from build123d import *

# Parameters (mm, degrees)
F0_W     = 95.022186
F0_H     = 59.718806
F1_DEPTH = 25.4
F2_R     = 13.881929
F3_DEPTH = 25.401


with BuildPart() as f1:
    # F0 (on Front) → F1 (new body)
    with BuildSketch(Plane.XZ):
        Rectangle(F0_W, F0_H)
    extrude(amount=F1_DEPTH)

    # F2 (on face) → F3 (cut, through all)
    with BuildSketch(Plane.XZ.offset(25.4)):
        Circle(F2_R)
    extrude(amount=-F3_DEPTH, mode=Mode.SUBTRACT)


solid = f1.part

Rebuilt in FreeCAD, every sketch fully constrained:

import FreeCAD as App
import Part
import Sketcher
Q = App.Units.Quantity


def add_polygon(sketch, points):
    """Adds a closed chain of lines whose ends are joined by coincident constraints."""
    first, n = sketch.GeometryCount, len(points)
    for a, b in zip(points, points[1:] + points[:1]):
        sketch.addGeometry(Part.LineSegment(App.Vector(*a, 0), App.Vector(*b, 0)), False)
    for i in range(n):
        sketch.addConstraint(Sketcher.Constraint("Coincident", first + i, 2, first + (i + 1) % n, 1))

doc = App.newDocument("Part")
body = doc.addObject("PartDesign::Body", "Body")

# Sketch on XZ plane
sketch1 = doc.addObject("Sketcher::SketchObject", "Sketch")
body.addObject(sketch1)
sketch1.AttachmentSupport = (doc.XZ_Plane, [""])
sketch1.MapMode = "FlatFace"
add_polygon(sketch1, [(-47.511093, 29.859403), (-47.511093, -29.859403), (47.511093, -29.859403), (47.511093, 29.859403)])  # lines 0-3
sketch1.addConstraint(Sketcher.Constraint("Vertical", 0))
sketch1.addConstraint(Sketcher.Constraint("Horizontal", 1))
sketch1.addConstraint(Sketcher.Constraint("Vertical", 2))
sketch1.addConstraint(Sketcher.Constraint("Horizontal", 3))
sketch1.addConstraint(Sketcher.Constraint("Symmetric", 0, 2, 2, 2, -1, 1))
sketch1.addConstraint(Sketcher.Constraint("DistanceX", 1, 1, 1, 2, Q("95.022186 mm")))
sketch1.addConstraint(Sketcher.Constraint("DistanceY", 0, 2, 0, 1, Q("59.718806 mm")))
pad1 = doc.addObject("PartDesign::Pad", "Pad")
body.addObject(pad1)
pad1.Profile = sketch1
pad1.Length = Q("1 in")

# Sketch on XZ plane
sketch2 = doc.addObject("Sketcher::SketchObject", "Sketch001")
body.addObject(sketch2)
sketch2.AttachmentSupport = (doc.XZ_Plane, [""])
sketch2.MapMode = "FlatFace"
sketch2.AttachmentOffset = App.Placement(App.Vector(0, 0, 1 * 25.4), App.Rotation())
sketch2.addGeometry(Part.Circle(App.Vector(0, 0, 0), App.Vector(0, 0, 1), 13.881929), False)
sketch2.addConstraint(Sketcher.Constraint("Coincident", 0, 3, -1, 1))
sketch2.addConstraint(Sketcher.Constraint("Diameter", 0, Q("27.763858 mm")))
pocket1 = doc.addObject("PartDesign::Pocket", "Pocket")
body.addObject(pocket1)
pocket1.Profile = sketch2
pocket1.Type = "ThroughAll"

doc.recompute()
